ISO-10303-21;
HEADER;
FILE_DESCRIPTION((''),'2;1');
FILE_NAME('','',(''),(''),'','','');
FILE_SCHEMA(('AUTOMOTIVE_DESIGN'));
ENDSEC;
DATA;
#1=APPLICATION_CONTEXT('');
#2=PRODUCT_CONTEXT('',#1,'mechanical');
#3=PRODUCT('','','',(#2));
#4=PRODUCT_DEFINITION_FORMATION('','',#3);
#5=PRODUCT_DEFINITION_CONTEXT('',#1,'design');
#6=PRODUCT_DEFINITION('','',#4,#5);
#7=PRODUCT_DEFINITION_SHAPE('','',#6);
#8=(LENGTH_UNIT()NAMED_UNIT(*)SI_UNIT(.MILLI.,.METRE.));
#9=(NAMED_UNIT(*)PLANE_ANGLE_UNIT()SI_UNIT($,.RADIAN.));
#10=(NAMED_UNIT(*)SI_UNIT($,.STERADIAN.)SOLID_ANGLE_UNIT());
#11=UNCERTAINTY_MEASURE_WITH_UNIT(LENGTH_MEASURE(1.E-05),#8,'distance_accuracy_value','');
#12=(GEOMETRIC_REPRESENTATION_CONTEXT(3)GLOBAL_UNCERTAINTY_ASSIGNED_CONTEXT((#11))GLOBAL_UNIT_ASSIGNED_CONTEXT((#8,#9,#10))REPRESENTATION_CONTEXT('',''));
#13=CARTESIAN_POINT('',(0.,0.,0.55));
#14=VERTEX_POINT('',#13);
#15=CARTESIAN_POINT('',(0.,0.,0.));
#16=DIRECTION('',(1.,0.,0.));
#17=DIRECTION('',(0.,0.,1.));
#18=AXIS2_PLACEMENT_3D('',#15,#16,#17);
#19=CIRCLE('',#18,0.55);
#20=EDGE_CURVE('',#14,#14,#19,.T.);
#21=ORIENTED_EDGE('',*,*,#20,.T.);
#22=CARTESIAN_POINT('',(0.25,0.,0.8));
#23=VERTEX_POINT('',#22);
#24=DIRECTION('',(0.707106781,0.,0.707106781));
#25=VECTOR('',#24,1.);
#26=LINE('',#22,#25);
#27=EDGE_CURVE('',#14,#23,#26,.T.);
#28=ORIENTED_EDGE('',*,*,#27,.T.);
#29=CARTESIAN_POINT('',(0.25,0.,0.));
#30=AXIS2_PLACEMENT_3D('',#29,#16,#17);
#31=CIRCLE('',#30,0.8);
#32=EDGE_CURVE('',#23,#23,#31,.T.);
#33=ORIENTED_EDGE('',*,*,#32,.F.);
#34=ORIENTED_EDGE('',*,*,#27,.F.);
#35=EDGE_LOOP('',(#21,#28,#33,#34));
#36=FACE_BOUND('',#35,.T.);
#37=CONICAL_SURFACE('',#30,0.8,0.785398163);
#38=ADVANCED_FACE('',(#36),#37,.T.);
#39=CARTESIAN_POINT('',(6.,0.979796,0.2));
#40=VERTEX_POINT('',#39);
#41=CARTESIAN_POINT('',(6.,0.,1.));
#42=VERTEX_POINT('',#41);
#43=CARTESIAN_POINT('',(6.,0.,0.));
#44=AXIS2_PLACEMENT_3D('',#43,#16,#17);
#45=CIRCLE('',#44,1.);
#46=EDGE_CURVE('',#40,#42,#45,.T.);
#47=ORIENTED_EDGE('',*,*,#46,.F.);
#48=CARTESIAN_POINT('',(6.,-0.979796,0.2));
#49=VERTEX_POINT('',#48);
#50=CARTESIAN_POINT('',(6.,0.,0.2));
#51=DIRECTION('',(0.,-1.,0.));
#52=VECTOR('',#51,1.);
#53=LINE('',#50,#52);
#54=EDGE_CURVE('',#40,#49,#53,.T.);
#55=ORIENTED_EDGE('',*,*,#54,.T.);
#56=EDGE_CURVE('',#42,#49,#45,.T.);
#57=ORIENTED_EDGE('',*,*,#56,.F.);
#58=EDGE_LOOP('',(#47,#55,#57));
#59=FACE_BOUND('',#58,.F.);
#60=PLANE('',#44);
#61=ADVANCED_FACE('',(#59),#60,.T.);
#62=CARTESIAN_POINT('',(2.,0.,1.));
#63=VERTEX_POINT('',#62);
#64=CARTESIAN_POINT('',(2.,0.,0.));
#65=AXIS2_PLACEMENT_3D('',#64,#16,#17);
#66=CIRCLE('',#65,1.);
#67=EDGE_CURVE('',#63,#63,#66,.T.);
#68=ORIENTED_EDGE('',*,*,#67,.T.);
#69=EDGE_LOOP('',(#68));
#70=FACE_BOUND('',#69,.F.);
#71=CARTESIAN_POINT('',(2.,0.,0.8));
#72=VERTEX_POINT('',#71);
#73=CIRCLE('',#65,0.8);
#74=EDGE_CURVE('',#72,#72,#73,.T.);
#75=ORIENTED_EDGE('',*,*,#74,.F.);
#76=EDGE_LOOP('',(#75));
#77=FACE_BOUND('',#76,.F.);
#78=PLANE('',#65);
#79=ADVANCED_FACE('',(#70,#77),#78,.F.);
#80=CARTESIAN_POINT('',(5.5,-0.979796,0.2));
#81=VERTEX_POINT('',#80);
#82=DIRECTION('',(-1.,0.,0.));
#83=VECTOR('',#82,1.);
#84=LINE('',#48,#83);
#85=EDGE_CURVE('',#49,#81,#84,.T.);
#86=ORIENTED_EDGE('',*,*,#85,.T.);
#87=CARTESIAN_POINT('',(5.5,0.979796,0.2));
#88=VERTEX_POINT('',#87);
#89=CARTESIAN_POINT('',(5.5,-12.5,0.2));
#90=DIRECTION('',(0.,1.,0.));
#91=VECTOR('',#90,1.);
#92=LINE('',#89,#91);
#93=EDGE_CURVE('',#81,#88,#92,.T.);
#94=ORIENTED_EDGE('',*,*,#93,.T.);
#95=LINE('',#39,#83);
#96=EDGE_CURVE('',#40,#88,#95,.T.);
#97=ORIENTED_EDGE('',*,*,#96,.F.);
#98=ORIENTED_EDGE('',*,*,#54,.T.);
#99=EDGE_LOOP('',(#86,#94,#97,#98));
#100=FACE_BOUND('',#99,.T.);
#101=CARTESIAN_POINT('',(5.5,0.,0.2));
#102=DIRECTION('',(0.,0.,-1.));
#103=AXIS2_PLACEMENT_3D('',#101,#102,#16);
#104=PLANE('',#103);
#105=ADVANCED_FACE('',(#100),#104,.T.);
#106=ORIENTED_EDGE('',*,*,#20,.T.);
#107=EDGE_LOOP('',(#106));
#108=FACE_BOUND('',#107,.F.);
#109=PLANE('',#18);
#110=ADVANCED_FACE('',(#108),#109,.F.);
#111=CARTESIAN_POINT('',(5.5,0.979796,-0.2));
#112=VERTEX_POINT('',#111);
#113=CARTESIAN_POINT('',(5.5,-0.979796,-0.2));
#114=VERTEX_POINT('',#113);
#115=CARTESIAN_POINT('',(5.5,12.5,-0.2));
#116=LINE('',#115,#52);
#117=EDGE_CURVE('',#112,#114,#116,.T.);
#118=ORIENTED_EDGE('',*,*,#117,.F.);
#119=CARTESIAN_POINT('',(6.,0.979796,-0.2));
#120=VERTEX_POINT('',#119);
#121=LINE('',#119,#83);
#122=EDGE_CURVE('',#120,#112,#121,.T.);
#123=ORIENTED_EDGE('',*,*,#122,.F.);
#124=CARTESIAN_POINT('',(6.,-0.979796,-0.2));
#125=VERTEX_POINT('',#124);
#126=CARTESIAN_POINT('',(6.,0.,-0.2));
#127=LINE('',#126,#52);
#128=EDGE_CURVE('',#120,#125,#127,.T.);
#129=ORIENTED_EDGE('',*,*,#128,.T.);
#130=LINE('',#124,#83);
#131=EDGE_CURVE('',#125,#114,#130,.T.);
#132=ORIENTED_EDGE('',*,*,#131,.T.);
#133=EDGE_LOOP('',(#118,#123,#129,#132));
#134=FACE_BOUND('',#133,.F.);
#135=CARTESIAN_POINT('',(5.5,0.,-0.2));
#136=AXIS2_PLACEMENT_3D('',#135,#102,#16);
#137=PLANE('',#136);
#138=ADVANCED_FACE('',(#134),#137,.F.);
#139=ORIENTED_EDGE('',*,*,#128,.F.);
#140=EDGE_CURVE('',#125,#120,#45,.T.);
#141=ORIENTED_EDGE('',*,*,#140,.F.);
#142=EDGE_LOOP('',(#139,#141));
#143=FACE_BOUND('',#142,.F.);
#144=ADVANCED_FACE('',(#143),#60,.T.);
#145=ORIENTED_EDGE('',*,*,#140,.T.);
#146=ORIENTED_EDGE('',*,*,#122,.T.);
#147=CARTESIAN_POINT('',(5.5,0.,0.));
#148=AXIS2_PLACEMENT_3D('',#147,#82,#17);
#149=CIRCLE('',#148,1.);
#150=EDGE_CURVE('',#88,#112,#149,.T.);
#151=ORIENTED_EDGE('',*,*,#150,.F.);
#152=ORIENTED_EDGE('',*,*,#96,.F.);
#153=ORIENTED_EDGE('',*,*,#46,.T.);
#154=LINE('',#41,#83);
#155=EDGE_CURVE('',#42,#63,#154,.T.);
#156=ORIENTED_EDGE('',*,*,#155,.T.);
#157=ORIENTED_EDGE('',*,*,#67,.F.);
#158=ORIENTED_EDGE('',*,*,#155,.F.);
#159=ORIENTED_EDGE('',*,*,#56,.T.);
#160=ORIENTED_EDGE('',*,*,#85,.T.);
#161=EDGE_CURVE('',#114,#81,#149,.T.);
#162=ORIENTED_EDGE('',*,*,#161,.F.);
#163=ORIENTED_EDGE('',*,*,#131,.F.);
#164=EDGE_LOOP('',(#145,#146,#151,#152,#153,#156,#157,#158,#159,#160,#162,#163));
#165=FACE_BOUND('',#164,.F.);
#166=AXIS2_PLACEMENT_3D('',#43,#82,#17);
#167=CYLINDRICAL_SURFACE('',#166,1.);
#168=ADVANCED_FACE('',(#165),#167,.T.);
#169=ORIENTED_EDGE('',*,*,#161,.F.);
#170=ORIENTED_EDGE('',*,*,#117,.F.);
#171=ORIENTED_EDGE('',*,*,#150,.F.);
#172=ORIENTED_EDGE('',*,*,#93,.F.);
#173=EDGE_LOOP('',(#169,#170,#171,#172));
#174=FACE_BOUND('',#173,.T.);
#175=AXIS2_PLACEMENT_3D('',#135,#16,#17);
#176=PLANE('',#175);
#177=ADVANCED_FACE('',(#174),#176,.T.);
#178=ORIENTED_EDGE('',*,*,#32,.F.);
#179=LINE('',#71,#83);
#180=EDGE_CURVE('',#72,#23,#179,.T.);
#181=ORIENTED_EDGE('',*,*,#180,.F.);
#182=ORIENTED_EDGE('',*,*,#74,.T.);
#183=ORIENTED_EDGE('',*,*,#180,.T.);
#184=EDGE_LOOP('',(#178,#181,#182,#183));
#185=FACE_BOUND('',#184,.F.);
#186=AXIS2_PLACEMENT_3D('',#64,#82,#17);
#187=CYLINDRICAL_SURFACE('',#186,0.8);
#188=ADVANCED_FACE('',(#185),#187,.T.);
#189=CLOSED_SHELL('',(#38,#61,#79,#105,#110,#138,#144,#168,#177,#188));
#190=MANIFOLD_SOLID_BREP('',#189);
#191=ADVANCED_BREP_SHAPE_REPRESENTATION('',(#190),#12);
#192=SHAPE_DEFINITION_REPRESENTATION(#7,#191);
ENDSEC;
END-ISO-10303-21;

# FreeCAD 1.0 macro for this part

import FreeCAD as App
import Part
import Sketcher
from FreeCAD import Vector
Q = App.Units.Quantity


def edges_at(feature, points):
    """Names of the edges that pass closest to the given points."""
    edges = feature.Shape.Edges
    near = lambda p: min(range(len(edges)), key=lambda i: edges[i].distToShape(Part.Vertex(*p))[0])
    return sorted({f"Edge{near(p) + 1}" for p in points})

doc = App.newDocument("Part")
params = doc.addObject("Spreadsheet::Sheet", "Params")
for row, (alias, value) in enumerate([
    ("sketch1_width", "6 mm"),
    ("sketch1_width2", "4 mm"),
    ("sketch1_height", "1 mm"),
    ("sketch1_height2", "0.8 mm"),
    ("revolution_angle", "360 deg"),
    ("chamfer_size", "0.25 mm"),
    ("sketch2_width", "1.5 mm"),
    ("sketch2_height", "0.4 mm"),
    ("pocket1_length", "25 mm"),
], start=1):
    params.set(f"A{row}", alias)
    params.set(f"B{row}", "=" + value)
    params.setAlias(f"B{row}", alias)

body = doc.addObject("PartDesign::Body", "Body")

sketch1 = body.newObject("Sketcher::SketchObject", "Sketch")
sketch1.AttachmentSupport = (doc.getObject("XZ_Plane"), [""])
sketch1.MapMode = "FlatFace"
sketch1.addGeometry(Part.LineSegment(Vector(0, 0.8, 0), Vector(0, 0, 0)), False)
sketch1.addGeometry(Part.LineSegment(Vector(0, 0, 0), Vector(6, 0, 0)), False)
sketch1.addGeometry(Part.LineSegment(Vector(6, 0, 0), Vector(6, 1, 0)), False)
sketch1.addGeometry(Part.LineSegment(Vector(6, 1, 0), Vector(2, 1, 0)), False)
sketch1.addGeometry(Part.LineSegment(Vector(2, 1, 0), Vector(2, 0.8, 0)), False)
sketch1.addGeometry(Part.LineSegment(Vector(2, 0.8, 0), Vector(0, 0.8, 0)), False)
sketch1.addConstraint(Sketcher.Constraint("Coincident", 0, 2, 1, 1))
sketch1.addConstraint(Sketcher.Constraint("Coincident", 1, 2, 2, 1))
sketch1.addConstraint(Sketcher.Constraint("Coincident", 2, 2, 3, 1))
sketch1.addConstraint(Sketcher.Constraint("Coincident", 3, 2, 4, 1))
sketch1.addConstraint(Sketcher.Constraint("Coincident", 4, 2, 5, 1))
sketch1.addConstraint(Sketcher.Constraint("Coincident", 5, 2, 0, 1))
sketch1.addConstraint(Sketcher.Constraint("Vertical", 0))
sketch1.addConstraint(Sketcher.Constraint("Horizontal", 1))
sketch1.addConstraint(Sketcher.Constraint("Vertical", 2))
sketch1.addConstraint(Sketcher.Constraint("Horizontal", 3))
sketch1.addConstraint(Sketcher.Constraint("Vertical", 4))
sketch1.addConstraint(Sketcher.Constraint("Horizontal", 5))
sketch1.addConstraint(Sketcher.Constraint("Coincident", 0, 2, -1, 1))
sketch1.addConstraint(Sketcher.Constraint("DistanceX", 1, 1, 1, 2, Q("6 mm")))
sketch1.addConstraint(Sketcher.Constraint("DistanceX", 3, 2, 3, 1, Q("4 mm")))
sketch1.addConstraint(Sketcher.Constraint("DistanceY", 2, 1, 2, 2, Q("1 mm")))
sketch1.addConstraint(Sketcher.Constraint("DistanceY", 0, 2, 0, 1, Q("0.8 mm")))
sketch1.setExpression("Constraints[13]", "Params.sketch1_width")
sketch1.setExpression("Constraints[14]", "Params.sketch1_width2")
sketch1.setExpression("Constraints[15]", "Params.sketch1_height")
sketch1.setExpression("Constraints[16]", "Params.sketch1_height2")
revolution = body.newObject("PartDesign::Revolution", "Revolution")
revolution.Profile = sketch1
revolution.ReferenceAxis = (sketch1, ["H_Axis"])
revolution.setExpression("Angle", "Params.revolution_angle")
doc.recompute()

chamfer = body.newObject("PartDesign::Chamfer", "Chamfer")
chamfer.Base = (revolution, edges_at(revolution, [(0, 0, -0.8)]))
chamfer.setExpression("Size", "Params.chamfer_size")

sketch2 = body.newObject("Sketcher::SketchObject", "Sketch001")
sketch2.AttachmentSupport = (doc.getObject("XZ_Plane"), [""])
sketch2.MapMode = "FlatFace"
sketch2.addGeometry(Part.LineSegment(Vector(5.5, 0.2, 0), Vector(5.5, -0.2, 0)), False)
sketch2.addGeometry(Part.LineSegment(Vector(5.5, -0.2, 0), Vector(7, -0.2, 0)), False)
sketch2.addGeometry(Part.LineSegment(Vector(7, -0.2, 0), Vector(7, 0.2, 0)), False)
sketch2.addGeometry(Part.LineSegment(Vector(7, 0.2, 0), Vector(5.5, 0.2, 0)), False)
sketch2.addConstraint(Sketcher.Constraint("Coincident", 0, 2, 1, 1))
sketch2.addConstraint(Sketcher.Constraint("Coincident", 1, 2, 2, 1))
sketch2.addConstraint(Sketcher.Constraint("Coincident", 2, 2, 3, 1))
sketch2.addConstraint(Sketcher.Constraint("Coincident", 3, 2, 0, 1))
sketch2.addConstraint(Sketcher.Constraint("Vertical", 0))
sketch2.addConstraint(Sketcher.Constraint("Horizontal", 1))
sketch2.addConstraint(Sketcher.Constraint("Vertical", 2))
sketch2.addConstraint(Sketcher.Constraint("Horizontal", 3))
sketch2.addConstraint(Sketcher.Constraint("DistanceX", 1, 1, 1, 2, Q("1.5 mm")))
sketch2.addConstraint(Sketcher.Constraint("DistanceY", 0, 2, 0, 1, Q("0.4 mm")))
sketch2.addConstraint(Sketcher.Constraint("DistanceX", -1, 1, 1, 2, Q("7 mm")))
sketch2.addConstraint(Sketcher.Constraint("DistanceY", 0, 2, -1, 1, Q("0.2 mm")))
sketch2.setExpression("Constraints[8]", "Params.sketch2_width")
sketch2.setExpression("Constraints[9]", "Params.sketch2_height")
pocket1 = body.newObject("PartDesign::Pocket", "Pocket")
pocket1.Profile = sketch2
pocket1.setExpression("Length", "Params.pocket1_length")
pocket1.Midplane = True

doc.recompute()
